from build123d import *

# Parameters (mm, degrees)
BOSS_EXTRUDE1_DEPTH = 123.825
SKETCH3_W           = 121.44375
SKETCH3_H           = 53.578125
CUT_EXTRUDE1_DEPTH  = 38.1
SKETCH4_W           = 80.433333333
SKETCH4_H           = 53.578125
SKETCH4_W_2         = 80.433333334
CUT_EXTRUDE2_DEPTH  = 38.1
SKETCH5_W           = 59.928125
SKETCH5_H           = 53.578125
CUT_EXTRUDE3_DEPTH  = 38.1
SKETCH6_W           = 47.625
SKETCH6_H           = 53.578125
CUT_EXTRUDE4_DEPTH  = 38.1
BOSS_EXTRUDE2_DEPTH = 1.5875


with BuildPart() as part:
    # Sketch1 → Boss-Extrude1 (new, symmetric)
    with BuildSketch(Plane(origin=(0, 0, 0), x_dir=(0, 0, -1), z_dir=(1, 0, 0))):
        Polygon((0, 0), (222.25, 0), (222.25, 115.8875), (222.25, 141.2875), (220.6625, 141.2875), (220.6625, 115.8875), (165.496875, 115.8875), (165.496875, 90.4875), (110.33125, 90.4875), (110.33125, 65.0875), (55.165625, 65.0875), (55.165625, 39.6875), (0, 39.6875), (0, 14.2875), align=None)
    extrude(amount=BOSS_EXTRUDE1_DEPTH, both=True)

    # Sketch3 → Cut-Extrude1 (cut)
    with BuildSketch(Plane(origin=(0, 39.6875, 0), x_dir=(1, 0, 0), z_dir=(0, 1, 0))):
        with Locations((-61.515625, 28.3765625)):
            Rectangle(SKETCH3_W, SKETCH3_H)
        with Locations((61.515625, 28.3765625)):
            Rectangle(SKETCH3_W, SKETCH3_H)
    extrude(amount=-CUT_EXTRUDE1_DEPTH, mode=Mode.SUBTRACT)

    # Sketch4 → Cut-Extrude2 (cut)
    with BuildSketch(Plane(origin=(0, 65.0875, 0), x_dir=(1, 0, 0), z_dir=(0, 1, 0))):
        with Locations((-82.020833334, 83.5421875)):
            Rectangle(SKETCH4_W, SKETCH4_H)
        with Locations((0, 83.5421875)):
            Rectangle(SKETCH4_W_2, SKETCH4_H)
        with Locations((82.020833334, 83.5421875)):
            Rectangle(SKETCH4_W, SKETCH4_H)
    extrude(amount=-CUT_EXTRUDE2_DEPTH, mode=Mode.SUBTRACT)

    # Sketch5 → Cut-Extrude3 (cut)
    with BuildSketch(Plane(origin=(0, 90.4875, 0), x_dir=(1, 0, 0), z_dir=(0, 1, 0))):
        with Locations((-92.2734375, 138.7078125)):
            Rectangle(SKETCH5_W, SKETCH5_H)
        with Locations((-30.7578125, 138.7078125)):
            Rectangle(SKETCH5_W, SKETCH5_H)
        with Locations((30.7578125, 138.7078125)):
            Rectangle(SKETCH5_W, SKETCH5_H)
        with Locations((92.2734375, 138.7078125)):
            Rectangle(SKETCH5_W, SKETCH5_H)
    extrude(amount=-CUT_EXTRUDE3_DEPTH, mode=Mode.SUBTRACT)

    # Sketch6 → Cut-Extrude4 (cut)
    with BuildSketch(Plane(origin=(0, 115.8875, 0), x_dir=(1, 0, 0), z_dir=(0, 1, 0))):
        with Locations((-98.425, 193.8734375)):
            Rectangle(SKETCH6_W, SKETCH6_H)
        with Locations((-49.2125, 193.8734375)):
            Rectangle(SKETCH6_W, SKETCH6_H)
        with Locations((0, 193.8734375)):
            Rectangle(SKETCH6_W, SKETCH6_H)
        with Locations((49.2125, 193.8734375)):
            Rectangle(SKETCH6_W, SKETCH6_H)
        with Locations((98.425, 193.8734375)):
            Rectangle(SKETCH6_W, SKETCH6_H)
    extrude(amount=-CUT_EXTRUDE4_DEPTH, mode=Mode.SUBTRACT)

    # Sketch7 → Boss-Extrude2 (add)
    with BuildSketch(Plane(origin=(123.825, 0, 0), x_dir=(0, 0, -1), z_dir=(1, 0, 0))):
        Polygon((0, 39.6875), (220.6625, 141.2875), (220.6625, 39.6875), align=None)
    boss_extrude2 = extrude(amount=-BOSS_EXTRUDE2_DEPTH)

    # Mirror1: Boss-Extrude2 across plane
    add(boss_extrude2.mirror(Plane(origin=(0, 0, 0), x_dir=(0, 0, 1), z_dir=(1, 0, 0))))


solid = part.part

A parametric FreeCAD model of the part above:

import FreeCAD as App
import Part
import Sketcher
Q = App.Units.Quantity

doc = App.newDocument("Part")
params = doc.addObject("Spreadsheet::Sheet", "Params")
for row, (alias, value) in enumerate([
    ("sketch1_width", "1 in"),
    ("sketch1_height", "8.75 in"),
    ("sketch1_width2", "5.5625 in"),
    ("sketch1_height2", "0.0625 in"),
    ("pad1_length", "9.75 in"),
    ("sketch2_width", "4.78125 in"),
    ("sketch2_height", "2.109375 in"),
    ("pocket1_length", "1.5 in"),
    ("sketch3_height", "2.109375 in"),
    ("pocket2_length", "1.5 in"),
    ("sketch4_width", "2.359375 in"),
    ("sketch4_height", "2.109375 in"),
    ("pocket3_length", "1.5 in"),
    ("sketch5_width", "1.875 in"),
    ("sketch5_height", "2.109375 in"),
    ("pocket4_length", "1.5 in"),
    ("sketch6_width", "4 in"),
    ("sketch6_height", "8.6875 in"),
    ("pad2_length", "0.0625 in"),
], start=1):
    params.set(f"A{row}", alias)
    params.set(f"B{row}", "=" + value)
    params.setAlias(f"B{row}", alias)

body = doc.addObject("PartDesign::Body", "Body")

sketch1 = doc.addObject("Sketcher::SketchObject", "Sketch")
body.addObject(sketch1)
sketch1.AttachmentSupport = (doc.YZ_Plane, [""])
sketch1.MapMode = "FlatFace"
sketch1.addGeometry([
    Part.LineSegment(App.Vector(0, 0, 0), App.Vector(0, -222.25, 0)),
    Part.LineSegment(App.Vector(0, -222.25, 0), App.Vector(141.2875, -222.25, 0)),
    Part.LineSegment(App.Vector(141.2875, -222.25, 0), App.Vector(141.2875, -220.6625, 0)),
    Part.LineSegment(App.Vector(141.2875, -220.6625, 0), App.Vector(115.8875, -220.6625, 0)),
    Part.LineSegment(App.Vector(115.8875, -220.6625, 0), App.Vector(115.8875, -165.496875, 0)),
    Part.LineSegment(App.Vector(115.8875, -165.496875, 0), App.Vector(90.4875, -165.496875, 0)),
    Part.LineSegment(App.Vector(90.4875, -165.496875, 0), App.Vector(90.4875, -110.33125, 0)),
    Part.LineSegment(App.Vector(90.4875, -110.33125, 0), App.Vector(65.0875, -110.33125, 0)),
    Part.LineSegment(App.Vector(65.0875, -110.33125, 0), App.Vector(65.0875, -55.165625, 0)),
    Part.LineSegment(App.Vector(65.0875, -55.165625, 0), App.Vector(39.6875, -55.165625, 0)),
    Part.LineSegment(App.Vector(39.6875, -55.165625, 0), App.Vector(39.6875, 0, 0)),
    Part.LineSegment(App.Vector(39.6875, 0, 0), App.Vector(0, 0, 0)),
], False)
sketch1.addConstraint([
    Sketcher.Constraint("Coincident", 0, 2, 1, 1),
    Sketcher.Constraint("Coincident", 1, 2, 2, 1),
    Sketcher.Constraint("Coincident", 2, 2, 3, 1),
    Sketcher.Constraint("Coincident", 3, 2, 4, 1),
    Sketcher.Constraint("Coincident", 4, 2, 5, 1),
    Sketcher.Constraint("Coincident", 5, 2, 6, 1),
    Sketcher.Constraint("Coincident", 6, 2, 7, 1),
    Sketcher.Constraint("Coincident", 7, 2, 8, 1),
    Sketcher.Constraint("Coincident", 8, 2, 9, 1),
    Sketcher.Constraint("Coincident", 9, 2, 10, 1),
    Sketcher.Constraint("Coincident", 10, 2, 11, 1),
    Sketcher.Constraint("Coincident", 11, 2, 0, 1),
    Sketcher.Constraint("Vertical", 0),
    Sketcher.Constraint("Horizontal", 1),
    Sketcher.Constraint("Vertical", 2),
    Sketcher.Constraint("Horizontal", 3),
    Sketcher.Constraint("Vertical", 4),
    Sketcher.Constraint("Horizontal", 5),
    Sketcher.Constraint("Vertical", 6),
    Sketcher.Constraint("Horizontal", 7),
    Sketcher.Constraint("Vertical", 8),
    Sketcher.Constraint("Horizontal", 9),
    Sketcher.Constraint("Vertical", 10),
    Sketcher.Constraint("Horizontal", 11),
    Sketcher.Constraint("Coincident", 11, 2, -1, 1),
    Sketcher.Constraint("Equal", 3, 5),
    Sketcher.Constraint("Equal", 5, 7),
    Sketcher.Constraint("Equal", 7, 9),
    Sketcher.Constraint("Equal", 4, 6),
    Sketcher.Constraint("Equal", 6, 8),
    Sketcher.Constraint("Equal", 8, 10),
    Sketcher.Constraint("DistanceX", 3, 2, 3, 1, Q("1 in")),
    Sketcher.Constraint("DistanceY", 0, 2, 0, 1, Q("8.75 in")),
    Sketcher.Constraint("DistanceX", 1, 1, 1, 2, Q("5.5625 in")),
    Sketcher.Constraint("DistanceY", 2, 1, 2, 2, Q("0.0625 in")),
])
sketch1.setExpression("Constraints[31]", "Params.sketch1_width")
sketch1.setExpression("Constraints[32]", "Params.sketch1_height")
sketch1.setExpression("Constraints[33]", "Params.sketch1_width2")
sketch1.setExpression("Constraints[34]", "Params.sketch1_height2")
pad1 = doc.addObject("PartDesign::Pad", "Pad")
body.addObject(pad1)
pad1.Profile = sketch1
pad1.setExpression("Length", "Params.pad1_length")
pad1.Midplane = True

sketch2 = doc.addObject("Sketcher::SketchObject", "Sketch001")
body.addObject(sketch2)
sketch2.AttachmentSupport = (doc.XZ_Plane, [""])
sketch2.MapMode = "FlatFace"
sketch2.AttachmentOffset = App.Placement(App.Vector(0, 0, -1.5625 * 25.4), App.Rotation())
sketch2.addGeometry([
    Part.LineSegment(App.Vector(-122.2375, -55.165625, 0), App.Vector(-122.2375, -1.5875, 0)),
    Part.LineSegment(App.Vector(-122.2375, -1.5875, 0), App.Vector(-0.79375, -1.5875, 0)),
    Part.LineSegment(App.Vector(-0.79375, -1.5875, 0), App.Vector(-0.79375, -55.165625, 0)),
    Part.LineSegment(App.Vector(-0.79375, -55.165625, 0), App.Vector(-122.2375, -55.165625, 0)),
    Part.LineSegment(App.Vector(0.79375, -55.165625, 0), App.Vector(0.79375, -1.5875, 0)),
    Part.LineSegment(App.Vector(0.79375, -1.5875, 0), App.Vector(122.2375, -1.5875, 0)),
    Part.LineSegment(App.Vector(122.2375, -1.5875, 0), App.Vector(122.2375, -55.165625, 0)),
    Part.LineSegment(App.Vector(122.2375, -55.165625, 0), App.Vector(0.79375, -55.165625, 0)),
], False)
sketch2.addConstraint([
    Sketcher.Constraint("Coincident", 0, 2, 1, 1),
    Sketcher.Constraint("Coincident", 1, 2, 2, 1),
    Sketcher.Constraint("Coincident", 2, 2, 3, 1),
    Sketcher.Constraint("Coincident", 3, 2, 0, 1),
    Sketcher.Constraint("Coincident", 4, 2, 5, 1),
    Sketcher.Constraint("Coincident", 5, 2, 6, 1),
    Sketcher.Constraint("Coincident", 6, 2, 7, 1),
    Sketcher.Constraint("Coincident", 7, 2, 4, 1),
    Sketcher.Constraint("Vertical", 0),
    Sketcher.Constraint("Horizontal", 1),
    Sketcher.Constraint("Vertical", 2),
    Sketcher.Constraint("Horizontal", 3),
    Sketcher.Constraint("Vertical", 4),
    Sketcher.Constraint("Horizontal", 5),
    Sketcher.Constraint("Vertical", 6),
    Sketcher.Constraint("Horizontal", 7),
    Sketcher.Constraint("Symmetric", 1, 2, 4, 2, -2),
    Sketcher.Constraint("Symmetric", 3, 2, 6, 2, -2),
    Sketcher.Constraint("DistanceX", 1, 1, 1, 2, Q("4.78125 in")),
    Sketcher.Constraint("DistanceY", 0, 1, 0, 2, Q("2.109375 in")),
    Sketcher.Constraint("DistanceX", 0, 2, -1, 1, Q("4.8125 in")),
    Sketcher.Constraint("DistanceY", 0, 2, -1, 1, Q("0.0625 in")),
])
sketch2.setExpression("Constraints[18]", "Params.sketch2_width")
sketch2.setExpression("Constraints[19]", "Params.sketch2_height")
pocket1 = doc.addObject("PartDesign::Pocket", "Pocket")
body.addObject(pocket1)
pocket1.Profile = sketch2
pocket1.setExpression("Length", "Params.pocket1_length")
pocket1.Reversed = True

sketch3 = doc.addObject("Sketcher::SketchObject", "Sketch002")
body.addObject(sketch3)
sketch3.AttachmentSupport = (doc.XZ_Plane, [""])
sketch3.MapMode = "FlatFace"
sketch3.AttachmentOffset = App.Placement(App.Vector(0, 0, -2.5625 * 25.4), App.Rotation())
sketch3.addGeometry([
    Part.LineSegment(App.Vector(-122.2375, -110.33125, 0), App.Vector(-122.2375, -56.753125, 0)),
    Part.LineSegment(App.Vector(-122.2375, -56.753125, 0), App.Vector(-41.804167, -56.753125, 0)),
    Part.LineSegment(App.Vector(-41.804167, -56.753125, 0), App.Vector(-41.804167, -110.33125, 0)),
    Part.LineSegment(App.Vector(-41.804167, -110.33125, 0), App.Vector(-122.2375, -110.33125, 0)),
    Part.LineSegment(App.Vector(-40.216667, -110.33125, 0), App.Vector(-40.216667, -56.753125, 0)),
    Part.LineSegment(App.Vector(-40.216667, -56.753125, 0), App.Vector(40.216667, -56.753125, 0)),
    Part.LineSegment(App.Vector(40.216667, -56.753125, 0), App.Vector(40.216667, -110.33125, 0)),
    Part.LineSegment(App.Vector(40.216667, -110.33125, 0), App.Vector(-40.216667, -110.33125, 0)),
    Part.LineSegment(App.Vector(41.804167, -110.33125, 0), App.Vector(41.804167, -56.753125, 0)),
    Part.LineSegment(App.Vector(41.804167, -56.753125, 0), App.Vector(122.2375, -56.753125, 0)),
    Part.LineSegment(App.Vector(122.2375, -56.753125, 0), App.Vector(122.2375, -110.33125, 0)),
    Part.LineSegment(App.Vector(122.2375, -110.33125, 0), App.Vector(41.804167, -110.33125, 0)),
], False)
sketch3.addConstraint([
    Sketcher.Constraint("Coincident", 0, 2, 1, 1),
    Sketcher.Constraint("Coincident", 1, 2, 2, 1),
    Sketcher.Constraint("Coincident", 2, 2, 3, 1),
    Sketcher.Constraint("Coincident", 3, 2, 0, 1),
    Sketcher.Constraint("Coincident", 4, 2, 5, 1),
    Sketcher.Constraint("Coincident", 5, 2, 6, 1),
    Sketcher.Constraint("Coincident", 6, 2, 7, 1),
    Sketcher.Constraint("Coincident", 7, 2, 4, 1),
    Sketcher.Constraint("Coincident", 8, 2, 9, 1),
    Sketcher.Constraint("Coincident", 9, 2, 10, 1),
    Sketcher.Constraint("Coincident", 10, 2, 11, 1),
    Sketcher.Constraint("Coincident", 11, 2, 8, 1),
    Sketcher.Constraint("Vertical", 0),
    Sketcher.Constraint("Horizontal", 1),
    Sketcher.Constraint("Vertical", 2),
    Sketcher.Constraint("Horizontal", 3),
    Sketcher.Constraint("Vertical", 4),
    Sketcher.Constraint("Horizontal", 5),
    Sketcher.Constraint("Vertical", 6),
    Sketcher.Constraint("Horizontal", 7),
    Sketcher.Constraint("Vertical", 8),
    Sketcher.Constraint("Horizontal", 9),
    Sketcher.Constraint("Vertical", 10),
    Sketcher.Constraint("Horizontal", 11),
    Sketcher.Constraint("Symmetric", 1, 2, 8, 2, -2),
    Sketcher.Constraint("Symmetric", 3, 2, 10, 2, -2),
    Sketcher.Constraint("Horizontal", 1, 2, 4, 2),
    Sketcher.Constraint("Horizontal", 3, 2, 6, 2),
    Sketcher.Constraint("Equal", 3, 5),
    Sketcher.Constraint("DistanceY", 0, 1, 0, 2, Q("2.109375 in")),
    Sketcher.Constraint("DistanceX", 0, 2, -1, 1, Q("4.8125 in")),
    Sketcher.Constraint("DistanceY", 0, 2, -1, 1, Q("2.234375 in")),
    Sketcher.Constraint("DistanceX", 1, 2, 4, 2, Q("0.0625 in")),
    Sketcher.Constraint("DistanceX", 5, 2, 8, 2, Q("0.0625 in")),
])
sketch3.setExpression("Constraints[29]", "Params.sketch3_height")
pocket2 = doc.addObject("PartDesign::Pocket", "Pocket001")
body.addObject(pocket2)
pocket2.Profile = sketch3
pocket2.setExpression("Length", "Params.pocket2_length")
pocket2.Reversed = True

sketch4 = doc.addObject("Sketcher::SketchObject", "Sketch003")
body.addObject(sketch4)
sketch4.AttachmentSupport = (doc.XZ_Plane, [""])
sketch4.MapMode = "FlatFace"
sketch4.AttachmentOffset = App.Placement(App.Vector(0, 0, -3.5625 * 25.4), App.Rotation())
sketch4.addGeometry([
    Part.LineSegment(App.Vector(-122.2375, -165.496875, 0), App.Vector(-122.2375, -111.91875, 0)),
    Part.LineSegment(App.Vector(-122.2375, -111.91875, 0), App.Vector(-62.309375, -111.91875, 0)),
    Part.LineSegment(App.Vector(-62.309375, -111.91875, 0), App.Vector(-62.309375, -165.496875, 0)),
    Part.LineSegment(App.Vector(-62.309375, -165.496875, 0), App.Vector(-122.2375, -165.496875, 0)),
    Part.LineSegment(App.Vector(-60.721875, -165.496875, 0), App.Vector(-60.721875, -111.91875, 0)),
    Part.LineSegment(App.Vector(-60.721875, -111.91875, 0), App.Vector(-0.79375, -111.91875, 0)),
    Part.LineSegment(App.Vector(-0.79375, -111.91875, 0), App.Vector(-0.79375, -165.496875, 0)),
    Part.LineSegment(App.Vector(-0.79375, -165.496875, 0), App.Vector(-60.721875, -165.496875, 0)),
    Part.LineSegment(App.Vector(0.79375, -165.496875, 0), App.Vector(0.79375, -111.91875, 0)),
    Part.LineSegment(App.Vector(0.79375, -111.91875, 0), App.Vector(60.721875, -111.91875, 0)),
    Part.LineSegment(App.Vector(60.721875, -111.91875, 0), App.Vector(60.721875, -165.496875, 0)),
    Part.LineSegment(App.Vector(60.721875, -165.496875, 0), App.Vector(0.79375, -165.496875, 0)),
    Part.LineSegment(App.Vector(62.309375, -165.496875, 0), App.Vector(62.309375, -111.91875, 0)),
    Part.LineSegment(App.Vector(62.309375, -111.91875, 0), App.Vector(122.2375, -111.91875, 0)),
    Part.LineSegment(App.Vector(122.2375, -111.91875, 0), App.Vector(122.2375, -165.496875, 0)),
    Part.LineSegment(App.Vector(122.2375, -165.496875, 0), App.Vector(62.309375, -165.496875, 0)),
], False)
sketch4.addConstraint([
    Sketcher.Constraint("Coincident", 0, 2, 1, 1),
    Sketcher.Constraint("Coincident", 1, 2, 2, 1),
    Sketcher.Constraint("Coincident", 2, 2, 3, 1),
    Sketcher.Constraint("Coincident", 3, 2, 0, 1),
    Sketcher.Constraint("Coincident", 4, 2, 5, 1),
    Sketcher.Constraint("Coincident", 5, 2, 6, 1),
    Sketcher.Constraint("Coincident", 6, 2, 7, 1),
    Sketcher.Constraint("Coincident", 7, 2, 4, 1),
    Sketcher.Constraint("Coincident", 8, 2, 9, 1),
    Sketcher.Constraint("Coincident", 9, 2, 10, 1),
    Sketcher.Constraint("Coincident", 10, 2, 11, 1),
    Sketcher.Constraint("Coincident", 11, 2, 8, 1),
    Sketcher.Constraint("Coincident", 12, 2, 13, 1),
    Sketcher.Constraint("Coincident", 13, 2, 14, 1),
    Sketcher.Constraint("Coincident", 14, 2, 15, 1),
    Sketcher.Constraint("Coincident", 15, 2, 12, 1),
    Sketcher.Constraint("Vertical", 0),
    Sketcher.Constraint("Horizontal", 1),
    Sketcher.Constraint("Vertical", 2),
    Sketcher.Constraint("Horizontal", 3),
    Sketcher.Constraint("Vertical", 4),
    Sketcher.Constraint("Horizontal", 5),
    Sketcher.Constraint("Vertical", 6),
    Sketcher.Constraint("Horizontal", 7),
    Sketcher.Constraint("Vertical", 8),
    Sketcher.Constraint("Horizontal", 9),
    Sketcher.Constraint("Vertical", 10),
    Sketcher.Constraint("Horizontal", 11),
    Sketcher.Constraint("Vertical", 12),
    Sketcher.Constraint("Horizontal", 13),
    Sketcher.Constraint("Vertical", 14),
    Sketcher.Constraint("Horizontal", 15),
    Sketcher.Constraint("Symmetric", 5, 2, 8, 2, -2),
    Sketcher.Constraint("Symmetric", 7, 2, 10, 2, -2),
    Sketcher.Constraint("Symmetric", 1, 2, 12, 2, -2),
    Sketcher.Constraint("Symmetric", 3, 2, 14, 2, -2),
    Sketcher.Constraint("Horizontal", 1, 2, 4, 2),
    Sketcher.Constraint("Horizontal", 3, 2, 6, 2),
    Sketcher.Constraint("Equal", 3, 5),
    Sketcher.Constraint("DistanceX", 1, 1, 1, 2, Q("2.359375 in")),
    Sketcher.Constraint("DistanceY", 0, 1, 0, 2, Q("2.109375 in")),
    Sketcher.Constraint("DistanceX", 0, 2, -1, 1, Q("4.8125 in")),
    Sketcher.Constraint("DistanceY", 0, 2, -1, 1, Q("4.40625 in")),
    Sketcher.Constraint("DistanceX", 4, 2, -1, 1, Q("2.390625 in")),
])
sketch4.setExpression("Constraints[39]", "Params.sketch4_width")
sketch4.setExpression("Constraints[40]", "Params.sketch4_height")
pocket3 = doc.addObject("PartDesign::Pocket", "Pocket002")
body.addObject(pocket3)
pocket3.Profile = sketch4
pocket3.setExpression("Length", "Params.pocket3_length")
pocket3.Reversed = True

sketch5 = doc.addObject("Sketcher::SketchObject", "Sketch004")
body.addObject(sketch5)
sketch5.AttachmentSupport = (doc.XZ_Plane, [""])
sketch5.MapMode = "FlatFace"
sketch5.AttachmentOffset = App.Placement(App.Vector(0, 0, -4.5625 * 25.4), App.Rotation())
sketch5.addGeometry([
    Part.LineSegment(App.Vector(-122.2375, -220.6625, 0), App.Vector(-122.2375, -167.084375, 0)),
    Part.LineSegment(App.Vector(-122.2375, -167.084375, 0), App.Vector(-74.6125, -167.084375, 0)),
    Part.LineSegment(App.Vector(-74.6125, -167.084375, 0), App.Vector(-74.6125, -220.6625, 0)),
    Part.LineSegment(App.Vector(-74.6125, -220.6625, 0), App.Vector(-122.2375, -220.6625, 0)),
    Part.LineSegment(App.Vector(-73.025, -220.6625, 0), App.Vector(-73.025, -167.084375, 0)),
    Part.LineSegment(App.Vector(-73.025, -167.084375, 0), App.Vector(-25.4, -167.084375, 0)),
    Part.LineSegment(App.Vector(-25.4, -167.084375, 0), App.Vector(-25.4, -220.6625, 0)),
    Part.LineSegment(App.Vector(-25.4, -220.6625, 0), App.Vector(-73.025, -220.6625, 0)),
    Part.LineSegment(App.Vector(-23.8125, -220.6625, 0), App.Vector(-23.8125, -167.084375, 0)),
    Part.LineSegment(App.Vector(-23.8125, -167.084375, 0), App.Vector(23.8125, -167.084375, 0)),
    Part.LineSegment(App.Vector(23.8125, -167.084375, 0), App.Vector(23.8125, -220.6625, 0)),
    Part.LineSegment(App.Vector(23.8125, -220.6625, 0), App.Vector(-23.8125, -220.6625, 0)),
    Part.LineSegment(App.Vector(25.4, -220.6625, 0), App.Vector(25.4, -167.084375, 0)),
    Part.LineSegment(App.Vector(25.4, -167.084375, 0), App.Vector(73.025, -167.084375, 0)),
    Part.LineSegment(App.Vector(73.025, -167.084375, 0), App.Vector(73.025, -220.6625, 0)),
    Part.LineSegment(App.Vector(73.025, -220.6625, 0), App.Vector(25.4, -220.6625, 0)),
    Part.LineSegment(App.Vector(74.6125, -220.6625, 0), App.Vector(74.6125, -167.084375, 0)),
    Part.LineSegment(App.Vector(74.6125, -167.084375, 0), App.Vector(122.2375, -167.084375, 0)),
    Part.LineSegment(App.Vector(122.2375, -167.084375, 0), App.Vector(122.2375, -220.6625, 0)),
    Part.LineSegment(App.Vector(122.2375, -220.6625, 0), App.Vector(74.6125, -220.6625, 0)),
], False)
sketch5.addConstraint([
    Sketcher.Constraint("Coincident", 0, 2, 1, 1),
    Sketcher.Constraint("Coincident", 1, 2, 2, 1),
    Sketcher.Constraint("Coincident", 2, 2, 3, 1),
    Sketcher.Constraint("Coincident", 3, 2, 0, 1),
    Sketcher.Constraint("Coincident", 4, 2, 5, 1),
    Sketcher.Constraint("Coincident", 5, 2, 6, 1),
    Sketcher.Constraint("Coincident", 6, 2, 7, 1),
    Sketcher.Constraint("Coincident", 7, 2, 4, 1),
    Sketcher.Constraint("Coincident", 8, 2, 9, 1),
    Sketcher.Constraint("Coincident", 9, 2, 10, 1),
    Sketcher.Constraint("Coincident", 10, 2, 11, 1),
    Sketcher.Constraint("Coincident", 11, 2, 8, 1),
    Sketcher.Constraint("Coincident", 12, 2, 13, 1),
    Sketcher.Constraint("Coincident", 13, 2, 14, 1),
    Sketcher.Constraint("Coincident", 14, 2, 15, 1),
    Sketcher.Constraint("Coincident", 15, 2, 12, 1),
    Sketcher.Constraint("Coincident", 16, 2, 17, 1),
    Sketcher.Constraint("Coincident", 17, 2, 18, 1),
    Sketcher.Constraint("Coincident", 18, 2, 19, 1),
    Sketcher.Constraint("Coincident", 19, 2, 16, 1),
    Sketcher.Constraint("Vertical", 0),
    Sketcher.Constraint("Horizontal", 1),
    Sketcher.Constraint("Vertical", 2),
    Sketcher.Constraint("Horizontal", 3),
    Sketcher.Constraint("Vertical", 4),
    Sketcher.Constraint("Horizontal", 5),
    Sketcher.Constraint("Vertical", 6),
    Sketcher.Constraint("Horizontal", 7),
    Sketcher.Constraint("Vertical", 8),
    Sketcher.Constraint("Horizontal", 9),
    Sketcher.Constraint("Vertical", 10),
    Sketcher.Constraint("Horizontal", 11),
    Sketcher.Constraint("Vertical", 12),
    Sketcher.Constraint("Horizontal", 13),
    Sketcher.Constraint("Vertical", 14),
    Sketcher.Constraint("Horizontal", 15),
    Sketcher.Constraint("Vertical", 16),
    Sketcher.Constraint("Horizontal", 17),
    Sketcher.Constraint("Vertical", 18),
    Sketcher.Constraint("Horizontal", 19),
    Sketcher.Constraint("Symmetric", 5, 2, 12, 2, -2),
    Sketcher.Constraint("Symmetric", 7, 2, 14, 2, -2),
    Sketcher.Constraint("Symmetric", 1, 2, 16, 2, -2),
    Sketcher.Constraint("Symmetric", 3, 2, 18, 2, -2),
    Sketcher.Constraint("Horizontal", 1, 2, 4, 2),
    Sketcher.Constraint("Horizontal", 3, 2, 6, 2),
    Sketcher.Constraint("Horizontal", 5, 2, 8, 2),
    Sketcher.Constraint("Horizontal", 7, 2, 10, 2),
    Sketcher.Constraint("Equal", 3, 5),
    Sketcher.Constraint("Equal", 7, 9),
    Sketcher.Constraint("DistanceX", 5, 2, -1, 1, Q("1 in")),
    Sketcher.Constraint("DistanceX", 1, 2, 8, 2, Q("2 in")),
    Sketcher.Constraint("DistanceX", 9, 2, 16, 2, Q("2 in")),
    Sketcher.Constraint("DistanceX", 1, 1, 1, 2, Q("1.875 in")),
    Sketcher.Constraint("DistanceY", 0, 1, 0, 2, Q("2.109375 in")),
    Sketcher.Constraint("DistanceY", 0, 2, -1, 1, Q("6.578125 in")),
])
sketch5.setExpression("Constraints[53]", "Params.sketch5_width")
sketch5.setExpression("Constraints[54]", "Params.sketch5_height")
pocket4 = doc.addObject("PartDesign::Pocket", "Pocket003")
body.addObject(pocket4)
pocket4.Profile = sketch5
pocket4.setExpression("Length", "Params.pocket4_length")
pocket4.Reversed = True

sketch6 = doc.addObject("Sketcher::SketchObject", "Sketch005")
body.addObject(sketch6)
sketch6.AttachmentSupport = (doc.YZ_Plane, [""])
sketch6.MapMode = "FlatFace"
sketch6.AttachmentOffset = App.Placement(App.Vector(0, 0, 4.875 * 25.4), App.Rotation())
sketch6.addGeometry([
    Part.LineSegment(App.Vector(141.2875, -220.6625, 0), App.Vector(39.6875, 0, 0)),
    Part.LineSegment(App.Vector(39.6875, 0, 0), App.Vector(39.6875, -220.6625, 0)),
    Part.LineSegment(App.Vector(39.6875, -220.6625, 0), App.Vector(141.2875, -220.6625, 0)),
], False)
sketch6.addConstraint([
    Sketcher.Constraint("Coincident", 0, 2, 1, 1),
    Sketcher.Constraint("Coincident", 1, 2, 2, 1),
    Sketcher.Constraint("Coincident", 2, 2, 0, 1),
    Sketcher.Constraint("Vertical", 1),
    Sketcher.Constraint("Horizontal", 2),
    Sketcher.Constraint("PointOnObject", 0, 2, -1),
    Sketcher.Constraint("DistanceX", 2, 1, 2, 2, Q("4 in")),
    Sketcher.Constraint("DistanceY", 1, 2, 1, 1, Q("8.6875 in")),
    Sketcher.Constraint("DistanceX", -1, 1, 0, 2, Q("1.5625 in")),
])
sketch6.setExpression("Constraints[6]", "Params.sketch6_width")
sketch6.setExpression("Constraints[7]", "Params.sketch6_height")
pad2 = doc.addObject("PartDesign::Pad", "Pad001")
body.addObject(pad2)
pad2.Profile = sketch6
pad2.setExpression("Length", "Params.pad2_length")
pad2.Reversed = True
doc.recompute()

mirrored = doc.addObject("PartDesign::Mirrored", "Mirrored")
body.addObject(mirrored)
mirrored.Originals = [pad2]
mirrored.MirrorPlane = (doc.YZ_Plane, [""])
body.Tip = mirrored

doc.recompute()
